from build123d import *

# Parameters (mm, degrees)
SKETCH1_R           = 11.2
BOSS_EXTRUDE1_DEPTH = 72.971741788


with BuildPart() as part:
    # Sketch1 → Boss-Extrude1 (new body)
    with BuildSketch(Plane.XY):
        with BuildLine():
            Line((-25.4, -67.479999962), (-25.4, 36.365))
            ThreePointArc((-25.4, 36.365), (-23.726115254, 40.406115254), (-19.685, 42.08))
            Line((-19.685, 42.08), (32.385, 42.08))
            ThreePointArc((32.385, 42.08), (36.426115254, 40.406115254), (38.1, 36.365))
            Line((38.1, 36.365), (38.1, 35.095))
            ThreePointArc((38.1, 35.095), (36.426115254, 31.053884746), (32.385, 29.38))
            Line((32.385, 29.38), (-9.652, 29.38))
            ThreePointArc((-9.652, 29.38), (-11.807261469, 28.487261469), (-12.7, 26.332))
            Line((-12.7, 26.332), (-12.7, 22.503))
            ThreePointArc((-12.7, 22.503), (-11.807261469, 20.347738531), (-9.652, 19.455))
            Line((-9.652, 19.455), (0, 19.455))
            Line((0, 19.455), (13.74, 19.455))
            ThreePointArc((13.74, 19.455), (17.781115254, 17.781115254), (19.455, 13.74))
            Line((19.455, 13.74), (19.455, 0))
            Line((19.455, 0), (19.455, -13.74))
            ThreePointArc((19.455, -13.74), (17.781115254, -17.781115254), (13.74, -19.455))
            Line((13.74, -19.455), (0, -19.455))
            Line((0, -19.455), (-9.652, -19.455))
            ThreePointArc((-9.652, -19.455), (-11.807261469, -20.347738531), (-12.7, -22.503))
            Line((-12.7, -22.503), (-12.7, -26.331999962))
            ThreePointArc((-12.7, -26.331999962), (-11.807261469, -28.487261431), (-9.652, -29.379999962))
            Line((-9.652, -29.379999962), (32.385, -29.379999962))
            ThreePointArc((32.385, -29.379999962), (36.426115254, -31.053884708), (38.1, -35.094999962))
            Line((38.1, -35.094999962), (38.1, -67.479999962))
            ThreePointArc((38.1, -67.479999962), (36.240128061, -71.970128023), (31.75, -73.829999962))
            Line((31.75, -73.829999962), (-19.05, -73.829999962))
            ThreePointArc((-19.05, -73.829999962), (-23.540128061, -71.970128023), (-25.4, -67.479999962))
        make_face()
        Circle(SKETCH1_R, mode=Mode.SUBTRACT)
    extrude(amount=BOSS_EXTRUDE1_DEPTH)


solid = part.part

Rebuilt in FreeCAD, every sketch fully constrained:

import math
import FreeCAD as App
import Part
import Sketcher
Q = App.Units.Quantity

doc = App.newDocument("Part")
body = doc.addObject("PartDesign::Body", "Body")

sketch1 = body.newObject("Sketcher::SketchObject", "Sketch")
sketch1.AttachmentSupport = (doc.getObject("XY_Plane"), [""])
sketch1.MapMode = "FlatFace"
sketch1.addGeometry(Part.LineSegment(App.Vector(-25.4, 36.4, 0), App.Vector(-25.4, -67.5, 0)), False)
sketch1.addGeometry(Part.ArcOfCircle(Part.Circle(App.Vector(-19.1, -67.5, 0), App.Vector(0, 0, 1), 6.3), math.radians(180), math.radians(270)), False)
sketch1.addGeometry(Part.LineSegment(App.Vector(-19.1, -73.8, 0), App.Vector(31.8, -73.8, 0)), False)
sketch1.addGeometry(Part.ArcOfCircle(Part.Circle(App.Vector(31.8, -67.5, 0), App.Vector(0, 0, 1), 6.3), math.radians(-90), math.radians(0)), False)
sketch1.addGeometry(Part.LineSegment(App.Vector(38.1, -67.5, 0), App.Vector(38.1, -35.1, 0)), False)
sketch1.addGeometry(Part.ArcOfCircle(Part.Circle(App.Vector(32.4, -35.1, 0), App.Vector(0, 0, 1), 5.7), math.radians(0), math.radians(90)), False)
sketch1.addGeometry(Part.LineSegment(App.Vector(32.4, -29.4, 0), App.Vector(-9.7, -29.4, 0)), False)
sketch1.addGeometry(Part.ArcOfCircle(Part.Circle(App.Vector(-9.7, -26.3, 0), App.Vector(0, 0, 1), 3), math.radians(180), math.radians(270)), False)
sketch1.addGeometry(Part.LineSegment(App.Vector(-12.7, -26.3, 0), App.Vector(-12.7, -22.5, 0)), False)
sketch1.addGeometry(Part.ArcOfCircle(Part.Circle(App.Vector(-9.7, -22.5, 0), App.Vector(0, 0, 1), 3), math.radians(90), math.radians(180)), False)
sketch1.addGeometry(Part.LineSegment(App.Vector(-9.7, -19.5, 0), App.Vector(13.7, -19.5, 0)), False)
sketch1.addGeometry(Part.ArcOfCircle(Part.Circle(App.Vector(13.7, -13.7, 0), App.Vector(0, 0, 1), 5.7), math.radians(-90), math.radians(0)), False)
sketch1.addGeometry(Part.LineSegment(App.Vector(19.5, -13.7, 0), App.Vector(19.5, 13.7, 0)), False)
sketch1.addGeometry(Part.ArcOfCircle(Part.Circle(App.Vector(13.7, 13.7, 0), App.Vector(0, 0, 1), 5.7), math.radians(0), math.radians(90)), False)
sketch1.addGeometry(Part.LineSegment(App.Vector(13.7, 19.5, 0), App.Vector(-9.7, 19.5, 0)), False)
sketch1.addGeometry(Part.ArcOfCircle(Part.Circle(App.Vector(-9.7, 22.5, 0), App.Vector(0, 0, 1), 3), math.radians(180), math.radians(270)), False)
sketch1.addGeometry(Part.LineSegment(App.Vector(-12.7, 22.5, 0), App.Vector(-12.7, 26.3, 0)), False)
sketch1.addGeometry(Part.ArcOfCircle(Part.Circle(App.Vector(-9.7, 26.3, 0), App.Vector(0, 0, 1), 3), math.radians(90), math.radians(180)), False)
sketch1.addGeometry(Part.LineSegment(App.Vector(-9.7, 29.4, 0), App.Vector(32.4, 29.4, 0)), False)
sketch1.addGeometry(Part.ArcOfCircle(Part.Circle(App.Vector(32.4, 35.1, 0), App.Vector(0, 0, 1), 5.7), math.radians(-90), math.radians(0)), False)
sketch1.addGeometry(Part.LineSegment(App.Vector(38.1, 35.1, 0), App.Vector(38.1, 36.4, 0)), False)
sketch1.addGeometry(Part.ArcOfCircle(Part.Circle(App.Vector(32.4, 36.4, 0), App.Vector(0, 0, 1), 5.7), math.radians(0), math.radians(90)), False)
sketch1.addGeometry(Part.LineSegment(App.Vector(32.4, 42.1, 0), App.Vector(-19.7, 42.1, 0)), False)
sketch1.addGeometry(Part.ArcOfCircle(Part.Circle(App.Vector(-19.7, 36.4, 0), App.Vector(0, 0, 1), 5.7), math.radians(90), math.radians(180)), False)
sketch1.addGeometry(Part.Circle(App.Vector(0, 0, 0), App.Vector(0, 0, 1), 11.2), False)
sketch1.addConstraint(Sketcher.Constraint("Tangent", 0, 2, 1, 1))
sketch1.addConstraint(Sketcher.Constraint("Tangent", 1, 2, 2, 1))
sketch1.addConstraint(Sketcher.Constraint("Tangent", 2, 2, 3, 1))
sketch1.addConstraint(Sketcher.Constraint("Tangent", 3, 2, 4, 1))
sketch1.addConstraint(Sketcher.Constraint("Tangent", 4, 2, 5, 1))
sketch1.addConstraint(Sketcher.Constraint("Tangent", 5, 2, 6, 1))
sketch1.addConstraint(Sketcher.Constraint("Tangent", 6, 2, 7, 2))
sketch1.addConstraint(Sketcher.Constraint("Tangent", 7, 1, 8, 1))
sketch1.addConstraint(Sketcher.Constraint("Tangent", 8, 2, 9, 2))
sketch1.addConstraint(Sketcher.Constraint("Tangent", 9, 1, 10, 1))
sketch1.addConstraint(Sketcher.Constraint("Tangent", 10, 2, 11, 1))
sketch1.addConstraint(Sketcher.Constraint("Tangent", 11, 2, 12, 1))
sketch1.addConstraint(Sketcher.Constraint("Tangent", 12, 2, 13, 1))
sketch1.addConstraint(Sketcher.Constraint("Tangent", 13, 2, 14, 1))
sketch1.addConstraint(Sketcher.Constraint("Tangent", 14, 2, 15, 2))
sketch1.addConstraint(Sketcher.Constraint("Tangent", 15, 1, 16, 1))
sketch1.addConstraint(Sketcher.Constraint("Tangent", 16, 2, 17, 2))
sketch1.addConstraint(Sketcher.Constraint("Tangent", 17, 1, 18, 1))
sketch1.addConstraint(Sketcher.Constraint("Tangent", 18, 2, 19, 1))
sketch1.addConstraint(Sketcher.Constraint("Tangent", 19, 2, 20, 1))
sketch1.addConstraint(Sketcher.Constraint("Tangent", 20, 2, 21, 1))
sketch1.addConstraint(Sketcher.Constraint("Tangent", 21, 2, 22, 1))
sketch1.addConstraint(Sketcher.Constraint("Tangent", 22, 2, 23, 1))
sketch1.addConstraint(Sketcher.Constraint("Tangent", 23, 2, 0, 1))
sketch1.addConstraint(Sketcher.Constraint("Vertical", 0))
sketch1.addConstraint(Sketcher.Constraint("Horizontal", 2))
sketch1.addConstraint(Sketcher.Constraint("Vertical", 4))
sketch1.addConstraint(Sketcher.Constraint("Horizontal", 6))
sketch1.addConstraint(Sketcher.Constraint("Vertical", 8))
sketch1.addConstraint(Sketcher.Constraint("Horizontal", 10))
sketch1.addConstraint(Sketcher.Constraint("Vertical", 12))
sketch1.addConstraint(Sketcher.Constraint("Horizontal", 14))
sketch1.addConstraint(Sketcher.Constraint("Vertical", 16))
sketch1.addConstraint(Sketcher.Constraint("Horizontal", 18))
sketch1.addConstraint(Sketcher.Constraint("Vertical", 20))
sketch1.addConstraint(Sketcher.Constraint("Horizontal", 22))
sketch1.addConstraint(Sketcher.Constraint("Coincident", 24, 3, -1, 1))
sketch1.addConstraint(Sketcher.Constraint("Equal", 1, 3))
sketch1.addConstraint(Sketcher.Constraint("Equal", 7, 9))
sketch1.addConstraint(Sketcher.Constraint("Equal", 5, 11))
sketch1.addConstraint(Sketcher.Constraint("Equal", 11, 13))
sketch1.addConstraint(Sketcher.Constraint("Equal", 9, 15))
sketch1.addConstraint(Sketcher.Constraint("Equal", 15, 17))
sketch1.addConstraint(Sketcher.Constraint("Equal", 13, 19))
sketch1.addConstraint(Sketcher.Constraint("Equal", 19, 21))
sketch1.addConstraint(Sketcher.Constraint("Equal", 21, 23))
sketch1.addConstraint(Sketcher.Constraint("Symmetric", 9, 3, 15, 3, -1))
sketch1.addConstraint(Sketcher.Constraint("Symmetric", 5, 3, 19, 3, -1))
sketch1.addConstraint(Sketcher.Constraint("DistanceX", 2, 1, 2, 2, Q("2 in")))
sketch1.addConstraint(Sketcher.Constraint("Radius", 1, Q("0.25 in")))
sketch1.addConstraint(Sketcher.Constraint("Radius", 7, Q("0.12 in")))
sketch1.addConstraint(Sketcher.Constraint("DistanceX", 0, 2, -1, 1, Q("1 in")))
sketch1.addConstraint(Sketcher.Constraint("Radius", 5, Q("0.225 in")))
sketch1.addConstraint(Sketcher.Constraint("DistanceY", 20, 1, 20, 2, Q("0.05 in")))
sketch1.addConstraint(Sketcher.Constraint("DistanceX", 7, 1, -1, 1, Q("0.5 in")))
sketch1.addConstraint(Sketcher.Constraint("DistanceY", 3, 3, 5, 2, Q("1.5 in")))
sketch1.addConstraint(Sketcher.Constraint("Diameter", 24, 22.4))
sketch1.addConstraint(Sketcher.Constraint("DistanceX", 10, 1, 10, 2, 23.392))
sketch1.addConstraint(Sketcher.Constraint("DistanceY", 0, 2, 0, 1, 103.845))
sketch1.addConstraint(Sketcher.Constraint("DistanceY", 8, 1, 8, 2, 3.829))
pad1 = body.newObject("PartDesign::Pad", "Pad")
pad1.Profile = sketch1
pad1.Length = 72.971742

doc.recompute()
